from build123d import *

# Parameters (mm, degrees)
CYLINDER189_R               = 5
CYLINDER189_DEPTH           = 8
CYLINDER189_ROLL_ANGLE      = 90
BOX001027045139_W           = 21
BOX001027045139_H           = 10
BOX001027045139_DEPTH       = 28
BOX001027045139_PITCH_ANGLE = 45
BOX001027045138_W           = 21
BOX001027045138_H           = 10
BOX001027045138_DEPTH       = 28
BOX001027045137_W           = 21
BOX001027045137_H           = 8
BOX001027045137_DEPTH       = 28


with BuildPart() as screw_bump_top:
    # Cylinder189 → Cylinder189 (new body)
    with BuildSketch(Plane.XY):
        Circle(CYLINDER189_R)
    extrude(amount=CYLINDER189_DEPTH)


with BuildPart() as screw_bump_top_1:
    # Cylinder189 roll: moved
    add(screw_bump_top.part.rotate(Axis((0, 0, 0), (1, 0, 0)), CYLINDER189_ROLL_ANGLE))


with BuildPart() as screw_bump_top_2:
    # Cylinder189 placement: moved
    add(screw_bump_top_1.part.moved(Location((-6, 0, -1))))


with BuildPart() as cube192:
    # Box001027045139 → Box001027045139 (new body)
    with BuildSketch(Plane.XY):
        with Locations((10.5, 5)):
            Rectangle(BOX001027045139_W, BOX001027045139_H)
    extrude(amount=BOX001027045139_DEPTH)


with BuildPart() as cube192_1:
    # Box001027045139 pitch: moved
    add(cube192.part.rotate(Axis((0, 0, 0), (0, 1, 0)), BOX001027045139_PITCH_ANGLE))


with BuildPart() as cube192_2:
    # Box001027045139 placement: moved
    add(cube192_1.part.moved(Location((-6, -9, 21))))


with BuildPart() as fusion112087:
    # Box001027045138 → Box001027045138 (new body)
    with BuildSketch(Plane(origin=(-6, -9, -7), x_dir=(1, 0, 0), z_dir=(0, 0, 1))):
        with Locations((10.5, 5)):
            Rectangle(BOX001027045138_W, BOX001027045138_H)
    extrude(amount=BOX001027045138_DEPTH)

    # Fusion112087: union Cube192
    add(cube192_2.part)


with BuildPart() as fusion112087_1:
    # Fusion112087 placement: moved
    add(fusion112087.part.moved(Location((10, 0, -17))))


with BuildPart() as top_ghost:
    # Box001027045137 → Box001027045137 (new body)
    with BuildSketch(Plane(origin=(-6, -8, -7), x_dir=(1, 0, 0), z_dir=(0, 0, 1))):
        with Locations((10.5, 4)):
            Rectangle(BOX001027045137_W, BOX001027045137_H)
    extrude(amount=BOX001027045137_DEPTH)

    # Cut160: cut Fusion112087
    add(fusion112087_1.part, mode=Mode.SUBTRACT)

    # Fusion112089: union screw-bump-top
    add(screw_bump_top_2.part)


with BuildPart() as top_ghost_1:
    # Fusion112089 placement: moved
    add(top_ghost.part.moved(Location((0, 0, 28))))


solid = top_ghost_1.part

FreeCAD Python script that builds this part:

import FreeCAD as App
import Part
import Sketcher
from FreeCAD import Vector
Q = App.Units.Quantity

doc = App.newDocument("Part")
body = doc.addObject("PartDesign::Body", "Body")

# Sketch on XY plane
sketch1 = body.newObject("Sketcher::SketchObject", "Sketch")
sketch1.AttachmentSupport = (doc.getObject("XY_Plane"), [""])
sketch1.MapMode = "FlatFace"
sketch1.addGeometry(Part.Circle(Vector(0, 0, 0), Vector(0, 0, 1), 5), False)
sketch1.addConstraint([
    Sketcher.Constraint("Coincident", 0, 3, -1, 1),
    Sketcher.Constraint("Diameter", 0, Q("10 mm")),
])
pad1 = body.newObject("PartDesign::Pad", "Pad")
pad1.Profile = sketch1
pad1.Length = 8
body2 = doc.addObject("PartDesign::Body", "Body001")
doc.recompute()

body.Placement = App.Placement(Vector(0, 0, 0), App.Rotation(Vector(1, 0, 0), 90))
boolean = body2.newObject("PartDesign::Boolean", "Boolean")
boolean.Type = "Fuse"
boolean.addObjects([body])
body3 = doc.addObject("PartDesign::Body", "Body002")
doc.recompute()

body2.Placement = App.Placement(Vector(-6, 0, -1), App.Rotation(Vector(0, 0, 1), 0))
boolean2 = body3.newObject("PartDesign::Boolean", "Boolean001")
boolean2.Type = "Fuse"
boolean2.addObjects([body2])
body4 = doc.addObject("PartDesign::Body", "Body003")

# Sketch on XY plane
sketch2 = body4.newObject("Sketcher::SketchObject", "Sketch001")
sketch2.AttachmentSupport = (doc.getObject("XY_Plane003"), [""])
sketch2.MapMode = "FlatFace"
sketch2.addGeometry([
    Part.LineSegment(Vector(0, 10, 0), Vector(0, 0, 0)),
    Part.LineSegment(Vector(0, 0, 0), Vector(21, 0, 0)),
    Part.LineSegment(Vector(21, 0, 0), Vector(21, 10, 0)),
    Part.LineSegment(Vector(21, 10, 0), Vector(0, 10, 0)),
], False)
sketch2.addConstraint([
    Sketcher.Constraint("Coincident", 0, 2, 1, 1),
    Sketcher.Constraint("Coincident", 1, 2, 2, 1),
    Sketcher.Constraint("Coincident", 2, 2, 3, 1),
    Sketcher.Constraint("Coincident", 3, 2, 0, 1),
    Sketcher.Constraint("Vertical", 0),
    Sketcher.Constraint("Horizontal", 1),
    Sketcher.Constraint("Vertical", 2),
    Sketcher.Constraint("Horizontal", 3),
    Sketcher.Constraint("Coincident", 0, 2, -1, 1),
    Sketcher.Constraint("DistanceX", 1, 1, 1, 2, Q("21 mm")),
    Sketcher.Constraint("DistanceY", 0, 2, 0, 1, Q("10 mm")),
])
pad2 = body4.newObject("PartDesign::Pad", "Pad001")
pad2.Profile = sketch2
pad2.Length = 28
body5 = doc.addObject("PartDesign::Body", "Body004")
doc.recompute()

body4.Placement = App.Placement(Vector(0, 0, 0), App.Rotation(Vector(0, 1, 0), 45))
boolean3 = body5.newObject("PartDesign::Boolean", "Boolean002")
boolean3.Type = "Fuse"
boolean3.addObjects([body4])
body6 = doc.addObject("PartDesign::Body", "Body005")
doc.recompute()

body5.Placement = App.Placement(Vector(-6, -9, 21), App.Rotation(Vector(0, 0, 1), 0))
boolean4 = body6.newObject("PartDesign::Boolean", "Boolean003")
boolean4.Type = "Fuse"
boolean4.addObjects([body5])
body7 = doc.addObject("PartDesign::Body", "Body006")

# Sketch on XY plane
sketch3 = body7.newObject("Sketcher::SketchObject", "Sketch002")
sketch3.AttachmentSupport = (doc.getObject("XY_Plane006"), [""])
sketch3.MapMode = "FlatFace"
sketch3.AttachmentOffset = App.Placement(Vector(0, 0, -7), App.Rotation())
sketch3.addGeometry([
    Part.LineSegment(Vector(-6, 1, 0), Vector(-6, -9, 0)),
    Part.LineSegment(Vector(-6, -9, 0), Vector(15, -9, 0)),
    Part.LineSegment(Vector(15, -9, 0), Vector(15, 1, 0)),
    Part.LineSegment(Vector(15, 1, 0), Vector(-6, 1, 0)),
], False)
sketch3.addConstraint([
    Sketcher.Constraint("Coincident", 0, 2, 1, 1),
    Sketcher.Constraint("Coincident", 1, 2, 2, 1),
    Sketcher.Constraint("Coincident", 2, 2, 3, 1),
    Sketcher.Constraint("Coincident", 3, 2, 0, 1),
    Sketcher.Constraint("Vertical", 0),
    Sketcher.Constraint("Horizontal", 1),
    Sketcher.Constraint("Vertical", 2),
    Sketcher.Constraint("Horizontal", 3),
    Sketcher.Constraint("DistanceX", 1, 1, 1, 2, Q("21 mm")),
    Sketcher.Constraint("DistanceY", 0, 2, 0, 1, Q("10 mm")),
    Sketcher.Constraint("DistanceX", 0, 2, -1, 1, Q("6 mm")),
    Sketcher.Constraint("DistanceY", 0, 2, -1, 1, Q("9 mm")),
])
pad3 = body7.newObject("PartDesign::Pad", "Pad002")
pad3.Profile = sketch3
pad3.Length = 28
doc.recompute()

boolean5 = body7.newObject("PartDesign::Boolean", "Boolean004")
boolean5.Type = "Fuse"
boolean5.addObjects([body6])
body8 = doc.addObject("PartDesign::Body", "Body007")
doc.recompute()

body7.Placement = App.Placement(Vector(10, 0, -17), App.Rotation(Vector(0, 0, 1), 0))
boolean6 = body8.newObject("PartDesign::Boolean", "Boolean005")
boolean6.Type = "Fuse"
boolean6.addObjects([body7])
body9 = doc.addObject("PartDesign::Body", "Body008")

# Sketch on XY plane
sketch4 = body9.newObject("Sketcher::SketchObject", "Sketch003")
sketch4.AttachmentSupport = (doc.getObject("XY_Plane008"), [""])
sketch4.MapMode = "FlatFace"
sketch4.AttachmentOffset = App.Placement(Vector(0, 0, -7), App.Rotation())
sketch4.addGeometry([
    Part.LineSegment(Vector(-6, 0, 0), Vector(-6, -8, 0)),
    Part.LineSegment(Vector(-6, -8, 0), Vector(15, -8, 0)),
    Part.LineSegment(Vector(15, -8, 0), Vector(15, 0, 0)),
    Part.LineSegment(Vector(15, 0, 0), Vector(-6, 0, 0)),
], False)
sketch4.addConstraint([
    Sketcher.Constraint("Coincident", 0, 2, 1, 1),
    Sketcher.Constraint("Coincident", 1, 2, 2, 1),
    Sketcher.Constraint("Coincident", 2, 2, 3, 1),
    Sketcher.Constraint("Coincident", 3, 2, 0, 1),
    Sketcher.Constraint("Vertical", 0),
    Sketcher.Constraint("Horizontal", 1),
    Sketcher.Constraint("Vertical", 2),
    Sketcher.Constraint("Horizontal", 3),
    Sketcher.Constraint("PointOnObject", 2, 2, -1),
    Sketcher.Constraint("DistanceX", 1, 1, 1, 2, Q("21 mm")),
    Sketcher.Constraint("DistanceY", 0, 2, 0, 1, Q("8 mm")),
    Sketcher.Constraint("DistanceX", 0, 2, -1, 1, Q("6 mm")),
])
pad4 = body9.newObject("PartDesign::Pad", "Pad003")
pad4.Profile = sketch4
pad4.Length = 28
doc.recompute()

boolean7 = body9.newObject("PartDesign::Boolean", "Boolean006")
boolean7.Type = "Cut"
boolean7.addObjects([body8])
doc.recompute()

boolean8 = body9.newObject("PartDesign::Boolean", "Boolean007")
boolean8.Type = "Fuse"
boolean8.addObjects([body3])
body10 = doc.addObject("PartDesign::Body", "Body009")
doc.recompute()

body9.Placement = App.Placement(Vector(0, 0, 28), App.Rotation(Vector(0, 0, 1), 0))
boolean9 = body10.newObject("PartDesign::Boolean", "Boolean008")
boolean9.Type = "Fuse"
boolean9.addObjects([body9])

doc.recompute()
